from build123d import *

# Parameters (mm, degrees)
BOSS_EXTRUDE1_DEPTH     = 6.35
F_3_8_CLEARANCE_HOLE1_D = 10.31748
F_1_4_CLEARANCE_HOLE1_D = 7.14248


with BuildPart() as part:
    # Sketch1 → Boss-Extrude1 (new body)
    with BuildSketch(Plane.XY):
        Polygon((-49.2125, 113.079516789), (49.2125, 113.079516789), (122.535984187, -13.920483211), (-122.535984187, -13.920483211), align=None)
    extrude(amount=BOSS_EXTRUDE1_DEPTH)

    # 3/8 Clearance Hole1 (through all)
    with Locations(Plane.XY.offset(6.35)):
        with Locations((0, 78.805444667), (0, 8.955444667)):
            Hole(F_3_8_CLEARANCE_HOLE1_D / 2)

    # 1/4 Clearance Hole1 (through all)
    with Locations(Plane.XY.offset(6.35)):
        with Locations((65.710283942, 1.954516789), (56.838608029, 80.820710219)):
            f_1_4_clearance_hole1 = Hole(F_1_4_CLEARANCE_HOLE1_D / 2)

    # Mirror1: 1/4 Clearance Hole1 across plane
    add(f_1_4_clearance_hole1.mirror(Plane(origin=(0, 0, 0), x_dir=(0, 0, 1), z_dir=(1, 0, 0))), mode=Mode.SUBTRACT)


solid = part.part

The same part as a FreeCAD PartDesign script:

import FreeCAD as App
import Part
import Sketcher

V = App.Vector
Q = App.Units.Quantity


def add_polygon(sketch, points):
    """Adds a closed chain of lines whose ends are joined by coincident constraints."""
    first, n = sketch.GeometryCount, len(points)
    for a, b in zip(points, points[1:] + points[:1]):
        sketch.addGeometry(Part.LineSegment(App.Vector(*a, 0), App.Vector(*b, 0)), False)
    for i in range(n):
        sketch.addConstraint(Sketcher.Constraint("Coincident", first + i, 2, first + (i + 1) % n, 1))

doc = App.newDocument("Part")
body = doc.addObject("PartDesign::Body", "Body")

# Sketch on XY plane
sketch1 = doc.addObject("Sketcher::SketchObject", "Sketch")
body.addObject(sketch1)
sketch1.AttachmentSupport = (doc.XY_Plane, [""])
sketch1.MapMode = "FlatFace"
add_polygon(sketch1, [(49, 113), (-49, 113), (-123, -14), (123, -14)])  # lines 0-3
sketch1.addConstraint([
    Sketcher.Constraint("Horizontal", 0),
    Sketcher.Constraint("Horizontal", 2),
    Sketcher.Constraint("Equal", 1, 3),
    Sketcher.Constraint("Angle", 1, Q("-120 deg")),
    Sketcher.Constraint("DistanceY", 1, 2, 0, 2, Q("5 in")),
    Sketcher.Constraint("DistanceX", 0, 2, 0, 1, Q("3.875 in")),
    Sketcher.Constraint("DistanceX", 0, 2, -1, 1, Q("1.9375 in")),
    Sketcher.Constraint("DistanceY", -1, 1, 0, 2, 113.079517),
])
pad1 = doc.addObject("PartDesign::Pad", "Pad")
body.addObject(pad1)
pad1.Profile = sketch1
pad1.Length = Q("0.25 in")

# Sketch on XY plane
sketch2 = doc.addObject("Sketcher::SketchObject", "Sketch001")
body.addObject(sketch2)
sketch2.AttachmentSupport = (doc.XY_Plane, [""])
sketch2.MapMode = "FlatFace"
sketch2.AttachmentOffset = App.Placement(V(0, 0, 0.25 * 25.4), App.Rotation())
sketch2.addGeometry([
    Part.Circle(V(0, 79, 0), V(0, 0, 1), 5),
    Part.Circle(V(0, 9, 0), V(0, 0, 1), 5),
], False)
sketch2.addConstraint([
    Sketcher.Constraint("Equal", 0, 1),
    Sketcher.Constraint("PointOnObject", 0, 3, -2),
    Sketcher.Constraint("PointOnObject", 1, 3, -2),
    Sketcher.Constraint("Diameter", 0, Q("0.4062 in")),
    Sketcher.Constraint("DistanceY", 1, 3, 0, 3, Q("2.75 in")),
    Sketcher.Constraint("DistanceY", -1, 1, 0, 3, 78.805445),
])
doc.recompute()
hole = doc.addObject("PartDesign::Hole", "Hole")
body.addObject(hole)
hole.Profile = sketch2
hole.ThreadType = "None"
hole.Diameter = Q("0.4062 in")
hole.DepthType = "ThroughAll"

# Sketch on XY plane
sketch3 = doc.addObject("Sketcher::SketchObject", "Sketch002")
body.addObject(sketch3)
sketch3.AttachmentSupport = (doc.XY_Plane, [""])
sketch3.MapMode = "FlatFace"
sketch3.AttachmentOffset = App.Placement(V(0, 0, 0.25 * 25.4), App.Rotation())
sketch3.addGeometry([
    Part.Circle(V(65.7, 2, 0), V(0, 0, 1), 3.6),
    Part.Circle(V(56.8, 80.8, 0), V(0, 0, 1), 3.6),
], False)
sketch3.addConstraint([
    Sketcher.Constraint("Equal", 0, 1),
    Sketcher.Constraint("Diameter", 0, Q("0.2812 in")),
    Sketcher.Constraint("DistanceX", -1, 1, 1, 3, 56.838608),
    Sketcher.Constraint("DistanceY", -1, 1, 1, 3, 80.82071),
    Sketcher.Constraint("DistanceX", -1, 1, 0, 3, 65.710284),
    Sketcher.Constraint("DistanceY", -1, 1, 0, 3, 1.954517),
])
doc.recompute()
hole2 = doc.addObject("PartDesign::Hole", "Hole001")
body.addObject(hole2)
hole2.Profile = sketch3
hole2.ThreadType = "None"
hole2.Diameter = Q("0.2812 in")
hole2.DepthType = "ThroughAll"
doc.recompute()

mirrored = doc.addObject("PartDesign::Mirrored", "Mirrored")
body.addObject(mirrored)
mirrored.Originals = [hole2]
mirrored.MirrorPlane = (doc.YZ_Plane, [""])
body.Tip = mirrored

doc.recompute()
